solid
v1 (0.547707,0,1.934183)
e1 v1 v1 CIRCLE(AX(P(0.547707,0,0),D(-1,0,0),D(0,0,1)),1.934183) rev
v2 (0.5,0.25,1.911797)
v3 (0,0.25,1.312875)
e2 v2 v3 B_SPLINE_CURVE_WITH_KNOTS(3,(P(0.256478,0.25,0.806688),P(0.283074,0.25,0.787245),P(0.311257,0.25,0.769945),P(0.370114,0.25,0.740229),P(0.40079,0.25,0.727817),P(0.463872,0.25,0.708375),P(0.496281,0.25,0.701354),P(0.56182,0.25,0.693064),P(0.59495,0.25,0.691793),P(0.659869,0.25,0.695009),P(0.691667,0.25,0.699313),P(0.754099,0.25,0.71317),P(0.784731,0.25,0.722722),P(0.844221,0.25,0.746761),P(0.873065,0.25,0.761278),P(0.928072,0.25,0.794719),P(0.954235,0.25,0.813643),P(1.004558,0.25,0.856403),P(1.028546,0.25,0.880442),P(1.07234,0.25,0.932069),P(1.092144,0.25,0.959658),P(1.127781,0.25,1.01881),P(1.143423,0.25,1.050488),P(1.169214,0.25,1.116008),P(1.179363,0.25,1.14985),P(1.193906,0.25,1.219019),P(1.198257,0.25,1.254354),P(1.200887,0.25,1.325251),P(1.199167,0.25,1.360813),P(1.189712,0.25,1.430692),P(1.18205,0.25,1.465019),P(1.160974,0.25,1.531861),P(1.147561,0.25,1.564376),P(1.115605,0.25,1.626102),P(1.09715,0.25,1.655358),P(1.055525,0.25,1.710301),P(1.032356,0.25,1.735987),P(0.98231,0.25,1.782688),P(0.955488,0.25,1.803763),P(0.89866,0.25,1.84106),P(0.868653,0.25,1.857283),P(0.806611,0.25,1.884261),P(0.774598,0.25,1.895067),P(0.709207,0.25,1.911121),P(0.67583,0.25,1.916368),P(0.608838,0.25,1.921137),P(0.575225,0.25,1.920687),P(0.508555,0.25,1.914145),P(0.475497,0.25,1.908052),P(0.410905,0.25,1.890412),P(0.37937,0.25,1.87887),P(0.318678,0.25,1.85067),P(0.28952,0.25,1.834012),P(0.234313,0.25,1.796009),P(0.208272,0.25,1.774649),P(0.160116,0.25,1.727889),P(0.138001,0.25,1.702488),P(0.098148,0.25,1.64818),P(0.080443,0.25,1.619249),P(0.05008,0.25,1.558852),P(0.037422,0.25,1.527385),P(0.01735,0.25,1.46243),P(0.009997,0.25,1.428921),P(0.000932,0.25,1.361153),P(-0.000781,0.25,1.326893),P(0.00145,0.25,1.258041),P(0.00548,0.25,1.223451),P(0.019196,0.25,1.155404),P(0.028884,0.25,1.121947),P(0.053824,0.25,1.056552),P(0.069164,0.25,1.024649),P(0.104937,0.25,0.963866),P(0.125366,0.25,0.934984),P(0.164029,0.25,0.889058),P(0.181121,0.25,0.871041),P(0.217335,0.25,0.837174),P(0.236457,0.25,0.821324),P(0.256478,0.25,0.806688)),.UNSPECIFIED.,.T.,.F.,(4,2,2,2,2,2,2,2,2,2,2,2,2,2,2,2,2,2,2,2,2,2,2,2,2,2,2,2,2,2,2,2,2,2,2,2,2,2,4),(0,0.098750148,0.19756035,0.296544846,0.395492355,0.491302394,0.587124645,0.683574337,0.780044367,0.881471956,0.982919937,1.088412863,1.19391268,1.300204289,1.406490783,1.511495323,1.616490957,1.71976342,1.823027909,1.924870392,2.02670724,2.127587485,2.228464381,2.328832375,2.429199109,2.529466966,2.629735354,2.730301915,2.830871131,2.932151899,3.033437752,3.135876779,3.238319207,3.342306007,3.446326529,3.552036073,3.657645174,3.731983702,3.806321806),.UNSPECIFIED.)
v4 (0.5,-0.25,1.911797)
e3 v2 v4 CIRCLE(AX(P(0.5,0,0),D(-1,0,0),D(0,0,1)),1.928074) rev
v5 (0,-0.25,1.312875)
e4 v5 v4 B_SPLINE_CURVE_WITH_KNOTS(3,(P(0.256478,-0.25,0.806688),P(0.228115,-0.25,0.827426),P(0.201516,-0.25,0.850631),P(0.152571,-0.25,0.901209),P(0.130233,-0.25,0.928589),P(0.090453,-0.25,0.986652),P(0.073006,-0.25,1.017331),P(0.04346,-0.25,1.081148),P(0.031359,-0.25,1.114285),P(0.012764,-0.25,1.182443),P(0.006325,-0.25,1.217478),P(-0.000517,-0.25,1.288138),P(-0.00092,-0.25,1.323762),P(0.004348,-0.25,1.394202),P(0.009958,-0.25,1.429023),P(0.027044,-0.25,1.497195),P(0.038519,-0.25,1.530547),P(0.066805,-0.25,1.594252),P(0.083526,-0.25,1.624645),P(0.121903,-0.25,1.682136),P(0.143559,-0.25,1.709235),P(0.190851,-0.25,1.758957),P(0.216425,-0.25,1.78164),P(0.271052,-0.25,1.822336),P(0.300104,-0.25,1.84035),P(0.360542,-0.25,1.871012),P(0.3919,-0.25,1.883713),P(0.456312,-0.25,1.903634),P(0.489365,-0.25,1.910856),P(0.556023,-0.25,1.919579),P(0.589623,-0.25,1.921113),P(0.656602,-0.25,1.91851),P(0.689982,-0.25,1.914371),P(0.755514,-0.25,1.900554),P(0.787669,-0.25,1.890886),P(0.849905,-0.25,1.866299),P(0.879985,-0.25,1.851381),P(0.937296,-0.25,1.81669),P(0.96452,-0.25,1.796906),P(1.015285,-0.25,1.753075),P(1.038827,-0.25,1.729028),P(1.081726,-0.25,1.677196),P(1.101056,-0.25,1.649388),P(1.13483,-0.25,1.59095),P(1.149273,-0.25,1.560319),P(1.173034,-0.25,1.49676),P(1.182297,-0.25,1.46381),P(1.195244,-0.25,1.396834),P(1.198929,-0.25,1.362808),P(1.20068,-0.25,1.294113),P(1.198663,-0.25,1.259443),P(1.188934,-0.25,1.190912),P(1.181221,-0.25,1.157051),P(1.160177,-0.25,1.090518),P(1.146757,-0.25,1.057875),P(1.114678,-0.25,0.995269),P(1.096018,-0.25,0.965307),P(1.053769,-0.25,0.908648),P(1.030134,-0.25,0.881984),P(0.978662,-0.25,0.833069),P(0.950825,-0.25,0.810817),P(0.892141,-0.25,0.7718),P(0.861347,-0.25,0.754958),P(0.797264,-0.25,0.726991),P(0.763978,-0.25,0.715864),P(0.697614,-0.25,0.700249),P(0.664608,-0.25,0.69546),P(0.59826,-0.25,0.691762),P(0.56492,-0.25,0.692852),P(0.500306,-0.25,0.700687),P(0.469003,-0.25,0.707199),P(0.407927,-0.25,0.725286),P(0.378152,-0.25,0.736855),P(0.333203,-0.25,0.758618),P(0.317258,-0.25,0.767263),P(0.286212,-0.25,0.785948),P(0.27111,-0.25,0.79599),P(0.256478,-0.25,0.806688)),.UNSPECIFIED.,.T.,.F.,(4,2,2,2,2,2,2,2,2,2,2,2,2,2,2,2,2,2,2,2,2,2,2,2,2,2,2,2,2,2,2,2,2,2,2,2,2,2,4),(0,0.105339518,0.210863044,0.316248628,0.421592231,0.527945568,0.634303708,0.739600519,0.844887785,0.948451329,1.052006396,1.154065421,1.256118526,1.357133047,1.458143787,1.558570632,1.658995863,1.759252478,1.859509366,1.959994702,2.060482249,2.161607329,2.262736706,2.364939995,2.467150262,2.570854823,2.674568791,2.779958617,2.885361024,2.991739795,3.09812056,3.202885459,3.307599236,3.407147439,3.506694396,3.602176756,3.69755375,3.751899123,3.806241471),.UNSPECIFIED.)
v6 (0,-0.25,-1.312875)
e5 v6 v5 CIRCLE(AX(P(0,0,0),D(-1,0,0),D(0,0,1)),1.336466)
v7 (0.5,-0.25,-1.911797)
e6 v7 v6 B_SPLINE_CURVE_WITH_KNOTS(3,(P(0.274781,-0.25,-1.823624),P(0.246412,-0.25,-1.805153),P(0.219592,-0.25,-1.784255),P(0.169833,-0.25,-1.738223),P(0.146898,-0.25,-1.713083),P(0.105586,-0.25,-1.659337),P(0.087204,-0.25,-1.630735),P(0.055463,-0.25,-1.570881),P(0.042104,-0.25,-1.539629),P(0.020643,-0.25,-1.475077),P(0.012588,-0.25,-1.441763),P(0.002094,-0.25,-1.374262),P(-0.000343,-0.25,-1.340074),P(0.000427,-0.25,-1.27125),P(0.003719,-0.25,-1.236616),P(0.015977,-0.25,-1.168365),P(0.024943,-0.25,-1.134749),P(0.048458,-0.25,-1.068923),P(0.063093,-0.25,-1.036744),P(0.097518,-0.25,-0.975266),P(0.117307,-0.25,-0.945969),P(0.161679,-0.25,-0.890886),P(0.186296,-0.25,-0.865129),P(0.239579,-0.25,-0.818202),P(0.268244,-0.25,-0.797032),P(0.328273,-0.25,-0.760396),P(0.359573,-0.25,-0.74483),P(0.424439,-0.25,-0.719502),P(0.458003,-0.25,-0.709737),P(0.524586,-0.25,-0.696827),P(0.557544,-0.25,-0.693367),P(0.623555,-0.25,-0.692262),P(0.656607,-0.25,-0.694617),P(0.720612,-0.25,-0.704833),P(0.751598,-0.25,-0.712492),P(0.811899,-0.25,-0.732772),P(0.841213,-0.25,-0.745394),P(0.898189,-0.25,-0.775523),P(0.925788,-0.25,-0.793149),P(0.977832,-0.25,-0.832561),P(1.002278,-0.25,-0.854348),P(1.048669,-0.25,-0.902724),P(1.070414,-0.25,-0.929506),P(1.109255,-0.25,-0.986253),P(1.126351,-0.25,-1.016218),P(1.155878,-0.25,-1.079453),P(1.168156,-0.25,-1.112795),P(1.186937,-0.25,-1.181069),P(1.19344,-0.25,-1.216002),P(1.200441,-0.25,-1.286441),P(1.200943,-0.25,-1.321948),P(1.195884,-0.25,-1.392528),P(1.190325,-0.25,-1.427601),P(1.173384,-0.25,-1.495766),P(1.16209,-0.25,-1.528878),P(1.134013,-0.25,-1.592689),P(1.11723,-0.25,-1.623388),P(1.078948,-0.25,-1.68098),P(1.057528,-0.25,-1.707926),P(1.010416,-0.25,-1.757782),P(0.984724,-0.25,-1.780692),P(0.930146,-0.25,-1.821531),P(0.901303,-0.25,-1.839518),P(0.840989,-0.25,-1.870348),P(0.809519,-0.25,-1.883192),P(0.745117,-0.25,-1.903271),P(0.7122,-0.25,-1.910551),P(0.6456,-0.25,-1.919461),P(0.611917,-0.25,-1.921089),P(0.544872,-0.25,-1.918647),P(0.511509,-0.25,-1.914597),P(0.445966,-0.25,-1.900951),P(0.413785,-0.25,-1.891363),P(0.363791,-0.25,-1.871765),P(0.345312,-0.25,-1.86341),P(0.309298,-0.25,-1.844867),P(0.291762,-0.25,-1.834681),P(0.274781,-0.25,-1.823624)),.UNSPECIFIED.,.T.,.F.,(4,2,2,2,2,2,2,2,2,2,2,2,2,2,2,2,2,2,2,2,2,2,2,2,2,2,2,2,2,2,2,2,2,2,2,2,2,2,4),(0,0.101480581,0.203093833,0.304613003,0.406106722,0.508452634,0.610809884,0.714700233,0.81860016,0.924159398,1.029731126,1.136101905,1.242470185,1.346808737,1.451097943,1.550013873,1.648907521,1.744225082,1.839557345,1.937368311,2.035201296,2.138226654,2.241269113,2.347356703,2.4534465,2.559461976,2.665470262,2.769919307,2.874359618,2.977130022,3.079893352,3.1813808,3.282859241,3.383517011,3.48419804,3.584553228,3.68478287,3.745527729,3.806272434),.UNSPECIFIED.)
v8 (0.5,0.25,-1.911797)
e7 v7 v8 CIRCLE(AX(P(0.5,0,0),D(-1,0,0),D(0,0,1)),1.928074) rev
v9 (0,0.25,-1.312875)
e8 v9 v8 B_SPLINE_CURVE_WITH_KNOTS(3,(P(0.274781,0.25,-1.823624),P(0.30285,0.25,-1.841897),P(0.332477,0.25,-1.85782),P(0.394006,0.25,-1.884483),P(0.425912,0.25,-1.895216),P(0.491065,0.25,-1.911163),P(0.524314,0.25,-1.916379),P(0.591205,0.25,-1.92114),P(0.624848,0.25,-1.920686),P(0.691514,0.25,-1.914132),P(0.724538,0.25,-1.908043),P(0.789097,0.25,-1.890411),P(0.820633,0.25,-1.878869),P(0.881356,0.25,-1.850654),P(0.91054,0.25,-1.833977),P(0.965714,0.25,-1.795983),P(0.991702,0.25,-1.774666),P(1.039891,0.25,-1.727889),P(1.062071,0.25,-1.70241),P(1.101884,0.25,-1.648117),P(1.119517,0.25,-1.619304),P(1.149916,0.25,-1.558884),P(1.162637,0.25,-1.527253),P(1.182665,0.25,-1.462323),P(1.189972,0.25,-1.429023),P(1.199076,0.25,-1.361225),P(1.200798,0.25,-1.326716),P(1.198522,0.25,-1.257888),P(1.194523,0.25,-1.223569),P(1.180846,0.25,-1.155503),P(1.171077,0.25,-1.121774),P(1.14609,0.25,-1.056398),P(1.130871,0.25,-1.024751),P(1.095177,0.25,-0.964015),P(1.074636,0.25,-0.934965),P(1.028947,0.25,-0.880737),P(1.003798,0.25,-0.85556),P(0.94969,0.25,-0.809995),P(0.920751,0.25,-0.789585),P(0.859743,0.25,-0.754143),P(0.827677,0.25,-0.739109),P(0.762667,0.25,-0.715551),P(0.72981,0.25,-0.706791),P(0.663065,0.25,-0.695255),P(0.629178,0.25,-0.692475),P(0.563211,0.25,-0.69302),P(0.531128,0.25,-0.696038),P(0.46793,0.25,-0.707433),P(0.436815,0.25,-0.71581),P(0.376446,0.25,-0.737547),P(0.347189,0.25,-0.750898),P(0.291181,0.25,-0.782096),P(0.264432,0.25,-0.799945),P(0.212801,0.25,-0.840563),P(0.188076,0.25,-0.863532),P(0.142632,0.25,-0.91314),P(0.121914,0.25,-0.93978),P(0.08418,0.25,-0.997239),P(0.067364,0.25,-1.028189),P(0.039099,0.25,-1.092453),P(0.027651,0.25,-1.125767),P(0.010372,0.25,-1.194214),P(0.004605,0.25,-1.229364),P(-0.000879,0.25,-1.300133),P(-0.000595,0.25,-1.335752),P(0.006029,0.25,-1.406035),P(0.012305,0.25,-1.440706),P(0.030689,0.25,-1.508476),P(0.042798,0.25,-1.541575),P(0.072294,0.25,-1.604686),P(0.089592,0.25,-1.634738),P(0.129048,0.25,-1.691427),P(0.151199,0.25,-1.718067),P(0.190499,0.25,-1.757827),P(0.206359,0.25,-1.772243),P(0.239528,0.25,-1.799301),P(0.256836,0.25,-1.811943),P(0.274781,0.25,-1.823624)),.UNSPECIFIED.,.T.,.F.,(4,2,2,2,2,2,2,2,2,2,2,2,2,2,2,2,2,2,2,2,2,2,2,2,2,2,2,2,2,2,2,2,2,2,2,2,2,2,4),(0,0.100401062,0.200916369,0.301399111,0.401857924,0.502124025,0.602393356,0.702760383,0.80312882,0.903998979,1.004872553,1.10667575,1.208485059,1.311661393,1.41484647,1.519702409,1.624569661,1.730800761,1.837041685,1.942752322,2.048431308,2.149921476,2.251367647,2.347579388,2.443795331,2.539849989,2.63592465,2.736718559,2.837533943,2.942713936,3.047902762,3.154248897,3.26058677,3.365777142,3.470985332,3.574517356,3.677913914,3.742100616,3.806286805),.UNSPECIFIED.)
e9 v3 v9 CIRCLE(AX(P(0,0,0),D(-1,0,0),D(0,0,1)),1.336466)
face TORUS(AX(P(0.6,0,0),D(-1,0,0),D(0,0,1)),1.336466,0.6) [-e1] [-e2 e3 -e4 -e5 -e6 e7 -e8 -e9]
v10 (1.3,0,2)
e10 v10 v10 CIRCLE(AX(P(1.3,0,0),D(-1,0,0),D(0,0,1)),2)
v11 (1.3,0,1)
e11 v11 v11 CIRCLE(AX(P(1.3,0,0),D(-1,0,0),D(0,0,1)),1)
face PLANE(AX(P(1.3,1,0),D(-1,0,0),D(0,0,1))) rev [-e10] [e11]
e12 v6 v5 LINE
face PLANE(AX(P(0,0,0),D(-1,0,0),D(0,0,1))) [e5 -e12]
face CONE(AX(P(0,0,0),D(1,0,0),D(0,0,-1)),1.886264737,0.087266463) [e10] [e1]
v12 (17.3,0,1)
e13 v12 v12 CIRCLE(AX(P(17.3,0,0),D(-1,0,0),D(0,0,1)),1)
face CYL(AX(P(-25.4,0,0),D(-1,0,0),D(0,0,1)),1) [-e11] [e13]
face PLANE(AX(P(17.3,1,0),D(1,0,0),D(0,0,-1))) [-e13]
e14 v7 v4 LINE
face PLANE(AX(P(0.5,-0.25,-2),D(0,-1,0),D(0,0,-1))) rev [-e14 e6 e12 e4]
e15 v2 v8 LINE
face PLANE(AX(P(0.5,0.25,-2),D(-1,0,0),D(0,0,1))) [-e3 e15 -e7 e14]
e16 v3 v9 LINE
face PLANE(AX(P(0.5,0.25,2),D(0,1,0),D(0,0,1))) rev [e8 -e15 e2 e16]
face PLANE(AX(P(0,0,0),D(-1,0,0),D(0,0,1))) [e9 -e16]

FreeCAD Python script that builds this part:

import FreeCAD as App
import Part
import Sketcher
Q = App.Units.Quantity


def edges_at(feature, points):
    """Names of the edges that pass closest to the given points."""
    edges = feature.Shape.Edges
    near = lambda p: min(range(len(edges)), key=lambda i: edges[i].distToShape(Part.Vertex(*p))[0])
    return sorted({f"Edge{near(p) + 1}" for p in points})


def add_polygon(sketch, points):
    """Adds a closed chain of lines whose ends are joined by coincident constraints."""
    first, n = sketch.GeometryCount, len(points)
    for a, b in zip(points, points[1:] + points[:1]):
        sketch.addGeometry(Part.LineSegment(App.Vector(*a, 0), App.Vector(*b, 0)), False)
    for i in range(n):
        sketch.addConstraint(Sketcher.Constraint("Coincident", first + i, 2, first + (i + 1) % n, 1))

doc = App.newDocument("Part")
body = doc.addObject("PartDesign::Body", "Body")

sketch1 = doc.addObject("Sketcher::SketchObject", "Sketch")
body.addObject(sketch1)
sketch1.AttachmentSupport = (doc.XY_Plane, [""])
sketch1.MapMode = "FlatFace"
add_polygon(sketch1, [(1.3, 1), (1.3, 2), (0, 1.886265), (0, 0), (17.3, 0), (17.3, 1)])
sketch1.addConstraint([
    Sketcher.Constraint("Vertical", 0),
    Sketcher.Constraint("Vertical", 2),
    Sketcher.Constraint("Horizontal", 3),
    Sketcher.Constraint("Vertical", 4),
    Sketcher.Constraint("Horizontal", 5),
    Sketcher.Constraint("Coincident", 2, 2, -1, 1),
    Sketcher.Constraint("Equal", 0, 4),
    Sketcher.Constraint("DistanceX", 5, 2, 5, 1, 16.0),
    Sketcher.Constraint("DistanceY", 0, 1, 0, 2, 1.0),
    Sketcher.Constraint("Angle", 1, Q("-175 deg")),
    Sketcher.Constraint("DistanceX", 3, 1, 3, 2, 17.3),
])
revolution = doc.addObject("PartDesign::Revolution", "Revolution")
body.addObject(revolution)
revolution.Profile = sketch1
revolution.ReferenceAxis = (sketch1, ["H_Axis"])
revolution.Angle = 360
doc.recompute()

fillet = doc.addObject("PartDesign::Fillet", "Fillet")
body.addObject(fillet)
fillet.Base = (revolution, edges_at(revolution, [(0, 0, -1.886)]))
fillet.Radius = 0.6

sketch2 = doc.addObject("Sketcher::SketchObject", "Sketch001")
body.addObject(sketch2)
sketch2.AttachmentSupport = (doc.YZ_Plane, [""])
sketch2.MapMode = "FlatFace"
add_polygon(sketch2, [(0.25, 2), (-0.25, 2), (-0.25, -2), (0.25, -2)])
sketch2.addConstraint([
    Sketcher.Constraint("Horizontal", 0),
    Sketcher.Constraint("Vertical", 1),
    Sketcher.Constraint("Horizontal", 2),
    Sketcher.Constraint("Vertical", 3),
    Sketcher.Constraint("Symmetric", 0, 2, 2, 2, -1, 1),
    Sketcher.Constraint("DistanceY", 1, 2, 1, 1, 4.0),
    Sketcher.Constraint("DistanceX", 0, 2, 0, 1, 0.5),
])
pocket1 = doc.addObject("PartDesign::Pocket", "Pocket")
body.addObject(pocket1)
pocket1.Profile = sketch2
pocket1.Length = 0.5
pocket1.Reversed = True

doc.recompute()
